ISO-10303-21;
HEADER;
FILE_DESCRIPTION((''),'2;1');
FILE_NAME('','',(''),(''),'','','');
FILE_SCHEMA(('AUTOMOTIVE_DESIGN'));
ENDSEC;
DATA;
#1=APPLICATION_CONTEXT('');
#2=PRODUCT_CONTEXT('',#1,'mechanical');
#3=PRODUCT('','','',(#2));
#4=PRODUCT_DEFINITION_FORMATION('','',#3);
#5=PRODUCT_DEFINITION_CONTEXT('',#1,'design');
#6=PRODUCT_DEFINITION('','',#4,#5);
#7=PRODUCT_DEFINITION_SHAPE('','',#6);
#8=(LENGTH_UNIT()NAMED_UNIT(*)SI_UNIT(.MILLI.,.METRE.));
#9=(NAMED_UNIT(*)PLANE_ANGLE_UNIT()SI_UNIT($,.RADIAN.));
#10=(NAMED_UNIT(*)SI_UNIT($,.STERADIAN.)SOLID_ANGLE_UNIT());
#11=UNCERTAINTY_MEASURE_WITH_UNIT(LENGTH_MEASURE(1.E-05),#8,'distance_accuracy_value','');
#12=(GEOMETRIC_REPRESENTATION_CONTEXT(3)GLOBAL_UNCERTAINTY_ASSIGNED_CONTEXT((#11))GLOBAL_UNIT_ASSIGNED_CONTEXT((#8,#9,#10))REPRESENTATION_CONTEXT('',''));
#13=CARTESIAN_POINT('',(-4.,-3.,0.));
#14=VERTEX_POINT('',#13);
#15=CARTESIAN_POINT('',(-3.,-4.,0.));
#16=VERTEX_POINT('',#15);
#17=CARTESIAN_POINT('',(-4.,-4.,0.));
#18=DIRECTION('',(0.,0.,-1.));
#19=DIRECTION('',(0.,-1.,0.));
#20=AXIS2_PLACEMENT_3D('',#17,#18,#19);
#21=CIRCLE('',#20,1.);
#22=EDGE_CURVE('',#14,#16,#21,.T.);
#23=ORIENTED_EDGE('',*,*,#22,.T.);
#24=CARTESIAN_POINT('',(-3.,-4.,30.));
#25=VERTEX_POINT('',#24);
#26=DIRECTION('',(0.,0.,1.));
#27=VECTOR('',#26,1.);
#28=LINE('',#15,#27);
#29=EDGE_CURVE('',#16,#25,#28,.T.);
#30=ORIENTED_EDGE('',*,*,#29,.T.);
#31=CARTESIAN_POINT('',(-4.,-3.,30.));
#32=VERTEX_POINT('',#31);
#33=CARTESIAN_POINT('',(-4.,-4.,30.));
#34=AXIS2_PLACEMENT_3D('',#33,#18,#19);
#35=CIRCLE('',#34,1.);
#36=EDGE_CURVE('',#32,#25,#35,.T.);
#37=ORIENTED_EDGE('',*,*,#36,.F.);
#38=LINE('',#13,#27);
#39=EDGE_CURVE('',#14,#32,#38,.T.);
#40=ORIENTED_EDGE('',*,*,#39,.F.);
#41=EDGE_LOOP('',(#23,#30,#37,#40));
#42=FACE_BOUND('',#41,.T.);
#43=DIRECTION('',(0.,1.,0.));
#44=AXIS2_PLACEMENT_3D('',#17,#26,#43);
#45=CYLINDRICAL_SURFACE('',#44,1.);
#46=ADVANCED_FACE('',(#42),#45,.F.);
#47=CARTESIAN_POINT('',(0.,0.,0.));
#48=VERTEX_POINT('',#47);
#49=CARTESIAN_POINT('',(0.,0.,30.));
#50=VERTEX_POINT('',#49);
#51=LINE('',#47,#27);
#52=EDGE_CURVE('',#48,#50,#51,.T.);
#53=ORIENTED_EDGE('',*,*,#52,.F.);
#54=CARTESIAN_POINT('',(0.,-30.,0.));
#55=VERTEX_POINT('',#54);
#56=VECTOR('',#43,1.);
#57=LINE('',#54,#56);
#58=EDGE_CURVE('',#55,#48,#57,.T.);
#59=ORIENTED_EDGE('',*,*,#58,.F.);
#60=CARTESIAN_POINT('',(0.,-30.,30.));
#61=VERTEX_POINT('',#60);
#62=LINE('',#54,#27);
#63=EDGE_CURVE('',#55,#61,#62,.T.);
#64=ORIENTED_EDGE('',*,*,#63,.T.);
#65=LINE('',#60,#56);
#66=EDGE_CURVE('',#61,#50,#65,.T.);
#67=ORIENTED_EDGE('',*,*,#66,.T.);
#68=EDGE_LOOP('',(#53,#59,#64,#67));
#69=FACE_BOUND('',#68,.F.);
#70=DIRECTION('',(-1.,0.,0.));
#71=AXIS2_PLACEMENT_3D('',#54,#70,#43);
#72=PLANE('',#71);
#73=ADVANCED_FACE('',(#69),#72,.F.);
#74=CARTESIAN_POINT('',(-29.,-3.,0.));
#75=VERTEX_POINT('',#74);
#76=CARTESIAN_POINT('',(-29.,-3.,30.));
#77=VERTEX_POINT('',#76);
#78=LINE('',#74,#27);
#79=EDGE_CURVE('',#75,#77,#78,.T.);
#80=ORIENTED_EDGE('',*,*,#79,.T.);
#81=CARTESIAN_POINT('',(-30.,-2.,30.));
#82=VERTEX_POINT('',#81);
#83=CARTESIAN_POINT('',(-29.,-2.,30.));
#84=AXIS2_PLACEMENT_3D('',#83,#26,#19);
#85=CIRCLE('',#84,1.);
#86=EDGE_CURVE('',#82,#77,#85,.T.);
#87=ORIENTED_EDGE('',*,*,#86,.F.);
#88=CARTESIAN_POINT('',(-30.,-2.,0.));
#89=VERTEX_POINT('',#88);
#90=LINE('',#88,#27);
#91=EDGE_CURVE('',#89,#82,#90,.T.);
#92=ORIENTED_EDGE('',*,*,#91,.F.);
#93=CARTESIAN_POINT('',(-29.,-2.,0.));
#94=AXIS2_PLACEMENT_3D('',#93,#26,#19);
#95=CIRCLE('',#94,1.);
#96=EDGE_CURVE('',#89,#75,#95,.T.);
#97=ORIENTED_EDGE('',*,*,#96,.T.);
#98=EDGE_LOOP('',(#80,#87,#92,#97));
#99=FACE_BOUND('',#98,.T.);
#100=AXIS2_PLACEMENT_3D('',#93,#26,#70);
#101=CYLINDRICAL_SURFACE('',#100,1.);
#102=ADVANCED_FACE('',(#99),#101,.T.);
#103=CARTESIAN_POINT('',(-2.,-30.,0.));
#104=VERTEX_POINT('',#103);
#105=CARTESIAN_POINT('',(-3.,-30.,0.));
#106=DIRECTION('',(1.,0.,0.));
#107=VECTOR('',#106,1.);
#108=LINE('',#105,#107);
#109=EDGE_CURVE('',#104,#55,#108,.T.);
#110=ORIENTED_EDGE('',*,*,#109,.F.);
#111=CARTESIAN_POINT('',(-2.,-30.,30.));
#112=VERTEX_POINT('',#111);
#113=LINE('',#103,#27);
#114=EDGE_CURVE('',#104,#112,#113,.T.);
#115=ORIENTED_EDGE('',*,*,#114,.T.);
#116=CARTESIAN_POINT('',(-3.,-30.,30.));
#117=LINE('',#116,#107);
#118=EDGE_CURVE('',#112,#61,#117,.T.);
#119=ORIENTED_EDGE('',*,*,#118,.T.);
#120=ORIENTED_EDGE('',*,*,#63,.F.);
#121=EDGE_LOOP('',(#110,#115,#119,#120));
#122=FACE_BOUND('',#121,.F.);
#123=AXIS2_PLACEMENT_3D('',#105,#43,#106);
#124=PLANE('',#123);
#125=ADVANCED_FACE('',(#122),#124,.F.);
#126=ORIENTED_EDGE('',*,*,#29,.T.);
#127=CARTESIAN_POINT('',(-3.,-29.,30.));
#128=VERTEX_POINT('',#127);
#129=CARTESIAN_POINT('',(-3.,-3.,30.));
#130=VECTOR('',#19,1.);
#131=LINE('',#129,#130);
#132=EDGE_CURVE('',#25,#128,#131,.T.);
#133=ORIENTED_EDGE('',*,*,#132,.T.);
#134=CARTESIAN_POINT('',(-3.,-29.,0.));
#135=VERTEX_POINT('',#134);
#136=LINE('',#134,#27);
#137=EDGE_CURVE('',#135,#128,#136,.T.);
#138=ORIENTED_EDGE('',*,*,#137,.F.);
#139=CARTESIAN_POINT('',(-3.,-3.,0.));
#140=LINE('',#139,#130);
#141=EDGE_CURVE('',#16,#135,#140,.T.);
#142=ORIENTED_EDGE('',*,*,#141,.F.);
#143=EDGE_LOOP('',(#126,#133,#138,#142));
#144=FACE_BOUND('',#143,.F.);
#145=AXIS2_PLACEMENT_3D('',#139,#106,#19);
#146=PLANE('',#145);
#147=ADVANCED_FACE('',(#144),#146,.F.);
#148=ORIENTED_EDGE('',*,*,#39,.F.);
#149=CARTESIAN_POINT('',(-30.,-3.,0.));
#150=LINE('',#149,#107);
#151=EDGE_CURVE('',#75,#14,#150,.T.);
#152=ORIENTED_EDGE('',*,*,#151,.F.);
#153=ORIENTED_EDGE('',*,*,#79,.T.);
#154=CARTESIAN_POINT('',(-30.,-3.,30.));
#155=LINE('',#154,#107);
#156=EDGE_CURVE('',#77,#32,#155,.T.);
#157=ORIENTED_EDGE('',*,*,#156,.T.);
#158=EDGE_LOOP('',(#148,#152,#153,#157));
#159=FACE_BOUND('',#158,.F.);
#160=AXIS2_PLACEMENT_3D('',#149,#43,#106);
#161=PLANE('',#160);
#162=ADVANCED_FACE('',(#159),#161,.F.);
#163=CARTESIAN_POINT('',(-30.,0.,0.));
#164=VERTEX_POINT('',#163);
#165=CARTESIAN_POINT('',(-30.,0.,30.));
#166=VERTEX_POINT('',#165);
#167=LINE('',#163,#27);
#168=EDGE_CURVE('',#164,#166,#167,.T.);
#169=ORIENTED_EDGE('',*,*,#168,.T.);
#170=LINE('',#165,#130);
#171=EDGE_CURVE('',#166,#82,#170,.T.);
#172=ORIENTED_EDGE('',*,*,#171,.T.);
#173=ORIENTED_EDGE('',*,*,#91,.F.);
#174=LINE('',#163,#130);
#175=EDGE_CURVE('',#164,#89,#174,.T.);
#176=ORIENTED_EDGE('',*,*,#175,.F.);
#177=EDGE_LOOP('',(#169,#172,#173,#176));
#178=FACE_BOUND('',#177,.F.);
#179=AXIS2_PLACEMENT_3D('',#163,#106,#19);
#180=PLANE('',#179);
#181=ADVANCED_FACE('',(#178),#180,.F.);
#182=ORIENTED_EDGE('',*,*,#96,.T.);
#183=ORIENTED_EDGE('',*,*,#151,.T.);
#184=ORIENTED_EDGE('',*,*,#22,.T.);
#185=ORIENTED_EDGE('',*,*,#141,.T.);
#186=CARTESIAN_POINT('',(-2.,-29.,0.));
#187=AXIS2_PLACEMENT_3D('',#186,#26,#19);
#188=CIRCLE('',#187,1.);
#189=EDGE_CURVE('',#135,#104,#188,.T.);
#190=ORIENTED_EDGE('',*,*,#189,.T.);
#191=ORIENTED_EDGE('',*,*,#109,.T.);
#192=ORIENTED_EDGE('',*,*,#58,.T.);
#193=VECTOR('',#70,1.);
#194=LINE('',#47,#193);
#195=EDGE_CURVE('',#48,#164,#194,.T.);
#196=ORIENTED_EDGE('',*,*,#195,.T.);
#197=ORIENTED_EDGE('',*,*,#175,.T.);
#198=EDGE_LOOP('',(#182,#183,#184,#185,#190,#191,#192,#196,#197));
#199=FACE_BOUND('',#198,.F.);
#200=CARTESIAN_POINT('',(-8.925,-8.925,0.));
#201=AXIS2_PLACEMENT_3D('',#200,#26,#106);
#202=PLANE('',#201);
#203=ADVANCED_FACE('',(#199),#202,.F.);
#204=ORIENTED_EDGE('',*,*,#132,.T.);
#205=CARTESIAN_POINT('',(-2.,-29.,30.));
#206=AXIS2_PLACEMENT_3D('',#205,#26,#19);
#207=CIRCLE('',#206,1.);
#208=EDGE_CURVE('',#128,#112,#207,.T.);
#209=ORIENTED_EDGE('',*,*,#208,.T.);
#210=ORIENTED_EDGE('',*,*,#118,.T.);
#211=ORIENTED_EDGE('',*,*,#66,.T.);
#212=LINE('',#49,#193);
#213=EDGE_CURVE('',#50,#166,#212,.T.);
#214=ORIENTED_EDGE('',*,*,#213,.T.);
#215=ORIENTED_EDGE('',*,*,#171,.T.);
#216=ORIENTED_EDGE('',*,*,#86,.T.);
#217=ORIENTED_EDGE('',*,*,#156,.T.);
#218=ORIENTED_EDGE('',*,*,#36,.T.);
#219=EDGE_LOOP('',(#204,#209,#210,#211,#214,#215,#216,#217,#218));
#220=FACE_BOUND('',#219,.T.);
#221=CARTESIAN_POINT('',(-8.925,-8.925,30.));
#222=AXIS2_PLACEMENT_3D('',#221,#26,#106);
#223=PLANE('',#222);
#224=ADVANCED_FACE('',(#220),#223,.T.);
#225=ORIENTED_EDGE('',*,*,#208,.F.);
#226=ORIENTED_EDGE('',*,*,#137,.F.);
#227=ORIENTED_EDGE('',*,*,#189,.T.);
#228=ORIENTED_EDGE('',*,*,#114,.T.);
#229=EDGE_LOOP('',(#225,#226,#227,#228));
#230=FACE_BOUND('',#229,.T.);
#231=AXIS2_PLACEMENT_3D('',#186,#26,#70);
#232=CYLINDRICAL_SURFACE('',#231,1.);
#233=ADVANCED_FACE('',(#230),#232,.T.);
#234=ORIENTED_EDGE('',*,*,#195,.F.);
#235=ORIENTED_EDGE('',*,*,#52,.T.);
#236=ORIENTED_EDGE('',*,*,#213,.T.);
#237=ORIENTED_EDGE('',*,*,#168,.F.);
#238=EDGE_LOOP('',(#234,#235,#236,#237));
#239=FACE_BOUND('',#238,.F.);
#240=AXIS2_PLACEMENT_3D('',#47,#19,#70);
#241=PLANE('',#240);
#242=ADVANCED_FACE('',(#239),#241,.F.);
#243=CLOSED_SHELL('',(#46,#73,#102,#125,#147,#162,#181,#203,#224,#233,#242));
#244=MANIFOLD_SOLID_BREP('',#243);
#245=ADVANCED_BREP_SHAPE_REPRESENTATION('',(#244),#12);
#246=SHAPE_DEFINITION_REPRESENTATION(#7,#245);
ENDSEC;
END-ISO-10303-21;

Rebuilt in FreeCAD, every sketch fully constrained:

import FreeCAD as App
import Part
import Sketcher
from FreeCAD import Vector


def edges_at(feature, points):
    """Names of the edges that pass closest to the given points."""
    edges = feature.Shape.Edges
    near = lambda p: min(range(len(edges)), key=lambda i: edges[i].distToShape(Part.Vertex(*p))[0])
    return sorted({f"Edge{near(p) + 1}" for p in points})

doc = App.newDocument("Part")
body = doc.addObject("PartDesign::Body", "Body")

# Sketch on XY plane
sketch1 = body.newObject("Sketcher::SketchObject", "Sketch")
sketch1.AttachmentSupport = (doc.getObject("XY_Plane"), [""])
sketch1.MapMode = "FlatFace"
sketch1.addGeometry(Part.LineSegment(Vector(0, 0, 0), Vector(-30, 0, 0)), False)
sketch1.addGeometry(Part.LineSegment(Vector(-30, 0, 0), Vector(-30, -3, 0)), False)
sketch1.addGeometry(Part.LineSegment(Vector(-30, -3, 0), Vector(-3, -3, 0)), False)
sketch1.addGeometry(Part.LineSegment(Vector(-3, -3, 0), Vector(-3, -30, 0)), False)
sketch1.addGeometry(Part.LineSegment(Vector(-3, -30, 0), Vector(0, -30, 0)), False)
sketch1.addGeometry(Part.LineSegment(Vector(0, -30, 0), Vector(0, 0, 0)), False)
sketch1.addConstraint(Sketcher.Constraint("Coincident", 0, 2, 1, 1))
sketch1.addConstraint(Sketcher.Constraint("Coincident", 1, 2, 2, 1))
sketch1.addConstraint(Sketcher.Constraint("Coincident", 2, 2, 3, 1))
sketch1.addConstraint(Sketcher.Constraint("Coincident", 3, 2, 4, 1))
sketch1.addConstraint(Sketcher.Constraint("Coincident", 4, 2, 5, 1))
sketch1.addConstraint(Sketcher.Constraint("Coincident", 5, 2, 0, 1))
sketch1.addConstraint(Sketcher.Constraint("Horizontal", 0))
sketch1.addConstraint(Sketcher.Constraint("Vertical", 1))
sketch1.addConstraint(Sketcher.Constraint("Horizontal", 2))
sketch1.addConstraint(Sketcher.Constraint("Vertical", 3))
sketch1.addConstraint(Sketcher.Constraint("Horizontal", 4))
sketch1.addConstraint(Sketcher.Constraint("Vertical", 5))
sketch1.addConstraint(Sketcher.Constraint("Coincident", 5, 2, -1, 1))
sketch1.addConstraint(Sketcher.Constraint("Equal", 4, 1))
sketch1.addConstraint(Sketcher.Constraint("Equal", 2, 3))
sketch1.addConstraint(Sketcher.Constraint("DistanceX", 0, 2, 0, 1, 30.0))
sketch1.addConstraint(Sketcher.Constraint("DistanceX", 2, 1, 2, 2, 27.0))
pad1 = body.newObject("PartDesign::Pad", "Pad")
pad1.Profile = sketch1
pad1.Length = 30
doc.recompute()

fillet = body.newObject("PartDesign::Fillet", "Fillet")
fillet.Base = (pad1, edges_at(pad1, [(-3, -30, 15), (-3, -3, 15), (-30, -3, 15)]))
fillet.Radius = 1

doc.recompute()
